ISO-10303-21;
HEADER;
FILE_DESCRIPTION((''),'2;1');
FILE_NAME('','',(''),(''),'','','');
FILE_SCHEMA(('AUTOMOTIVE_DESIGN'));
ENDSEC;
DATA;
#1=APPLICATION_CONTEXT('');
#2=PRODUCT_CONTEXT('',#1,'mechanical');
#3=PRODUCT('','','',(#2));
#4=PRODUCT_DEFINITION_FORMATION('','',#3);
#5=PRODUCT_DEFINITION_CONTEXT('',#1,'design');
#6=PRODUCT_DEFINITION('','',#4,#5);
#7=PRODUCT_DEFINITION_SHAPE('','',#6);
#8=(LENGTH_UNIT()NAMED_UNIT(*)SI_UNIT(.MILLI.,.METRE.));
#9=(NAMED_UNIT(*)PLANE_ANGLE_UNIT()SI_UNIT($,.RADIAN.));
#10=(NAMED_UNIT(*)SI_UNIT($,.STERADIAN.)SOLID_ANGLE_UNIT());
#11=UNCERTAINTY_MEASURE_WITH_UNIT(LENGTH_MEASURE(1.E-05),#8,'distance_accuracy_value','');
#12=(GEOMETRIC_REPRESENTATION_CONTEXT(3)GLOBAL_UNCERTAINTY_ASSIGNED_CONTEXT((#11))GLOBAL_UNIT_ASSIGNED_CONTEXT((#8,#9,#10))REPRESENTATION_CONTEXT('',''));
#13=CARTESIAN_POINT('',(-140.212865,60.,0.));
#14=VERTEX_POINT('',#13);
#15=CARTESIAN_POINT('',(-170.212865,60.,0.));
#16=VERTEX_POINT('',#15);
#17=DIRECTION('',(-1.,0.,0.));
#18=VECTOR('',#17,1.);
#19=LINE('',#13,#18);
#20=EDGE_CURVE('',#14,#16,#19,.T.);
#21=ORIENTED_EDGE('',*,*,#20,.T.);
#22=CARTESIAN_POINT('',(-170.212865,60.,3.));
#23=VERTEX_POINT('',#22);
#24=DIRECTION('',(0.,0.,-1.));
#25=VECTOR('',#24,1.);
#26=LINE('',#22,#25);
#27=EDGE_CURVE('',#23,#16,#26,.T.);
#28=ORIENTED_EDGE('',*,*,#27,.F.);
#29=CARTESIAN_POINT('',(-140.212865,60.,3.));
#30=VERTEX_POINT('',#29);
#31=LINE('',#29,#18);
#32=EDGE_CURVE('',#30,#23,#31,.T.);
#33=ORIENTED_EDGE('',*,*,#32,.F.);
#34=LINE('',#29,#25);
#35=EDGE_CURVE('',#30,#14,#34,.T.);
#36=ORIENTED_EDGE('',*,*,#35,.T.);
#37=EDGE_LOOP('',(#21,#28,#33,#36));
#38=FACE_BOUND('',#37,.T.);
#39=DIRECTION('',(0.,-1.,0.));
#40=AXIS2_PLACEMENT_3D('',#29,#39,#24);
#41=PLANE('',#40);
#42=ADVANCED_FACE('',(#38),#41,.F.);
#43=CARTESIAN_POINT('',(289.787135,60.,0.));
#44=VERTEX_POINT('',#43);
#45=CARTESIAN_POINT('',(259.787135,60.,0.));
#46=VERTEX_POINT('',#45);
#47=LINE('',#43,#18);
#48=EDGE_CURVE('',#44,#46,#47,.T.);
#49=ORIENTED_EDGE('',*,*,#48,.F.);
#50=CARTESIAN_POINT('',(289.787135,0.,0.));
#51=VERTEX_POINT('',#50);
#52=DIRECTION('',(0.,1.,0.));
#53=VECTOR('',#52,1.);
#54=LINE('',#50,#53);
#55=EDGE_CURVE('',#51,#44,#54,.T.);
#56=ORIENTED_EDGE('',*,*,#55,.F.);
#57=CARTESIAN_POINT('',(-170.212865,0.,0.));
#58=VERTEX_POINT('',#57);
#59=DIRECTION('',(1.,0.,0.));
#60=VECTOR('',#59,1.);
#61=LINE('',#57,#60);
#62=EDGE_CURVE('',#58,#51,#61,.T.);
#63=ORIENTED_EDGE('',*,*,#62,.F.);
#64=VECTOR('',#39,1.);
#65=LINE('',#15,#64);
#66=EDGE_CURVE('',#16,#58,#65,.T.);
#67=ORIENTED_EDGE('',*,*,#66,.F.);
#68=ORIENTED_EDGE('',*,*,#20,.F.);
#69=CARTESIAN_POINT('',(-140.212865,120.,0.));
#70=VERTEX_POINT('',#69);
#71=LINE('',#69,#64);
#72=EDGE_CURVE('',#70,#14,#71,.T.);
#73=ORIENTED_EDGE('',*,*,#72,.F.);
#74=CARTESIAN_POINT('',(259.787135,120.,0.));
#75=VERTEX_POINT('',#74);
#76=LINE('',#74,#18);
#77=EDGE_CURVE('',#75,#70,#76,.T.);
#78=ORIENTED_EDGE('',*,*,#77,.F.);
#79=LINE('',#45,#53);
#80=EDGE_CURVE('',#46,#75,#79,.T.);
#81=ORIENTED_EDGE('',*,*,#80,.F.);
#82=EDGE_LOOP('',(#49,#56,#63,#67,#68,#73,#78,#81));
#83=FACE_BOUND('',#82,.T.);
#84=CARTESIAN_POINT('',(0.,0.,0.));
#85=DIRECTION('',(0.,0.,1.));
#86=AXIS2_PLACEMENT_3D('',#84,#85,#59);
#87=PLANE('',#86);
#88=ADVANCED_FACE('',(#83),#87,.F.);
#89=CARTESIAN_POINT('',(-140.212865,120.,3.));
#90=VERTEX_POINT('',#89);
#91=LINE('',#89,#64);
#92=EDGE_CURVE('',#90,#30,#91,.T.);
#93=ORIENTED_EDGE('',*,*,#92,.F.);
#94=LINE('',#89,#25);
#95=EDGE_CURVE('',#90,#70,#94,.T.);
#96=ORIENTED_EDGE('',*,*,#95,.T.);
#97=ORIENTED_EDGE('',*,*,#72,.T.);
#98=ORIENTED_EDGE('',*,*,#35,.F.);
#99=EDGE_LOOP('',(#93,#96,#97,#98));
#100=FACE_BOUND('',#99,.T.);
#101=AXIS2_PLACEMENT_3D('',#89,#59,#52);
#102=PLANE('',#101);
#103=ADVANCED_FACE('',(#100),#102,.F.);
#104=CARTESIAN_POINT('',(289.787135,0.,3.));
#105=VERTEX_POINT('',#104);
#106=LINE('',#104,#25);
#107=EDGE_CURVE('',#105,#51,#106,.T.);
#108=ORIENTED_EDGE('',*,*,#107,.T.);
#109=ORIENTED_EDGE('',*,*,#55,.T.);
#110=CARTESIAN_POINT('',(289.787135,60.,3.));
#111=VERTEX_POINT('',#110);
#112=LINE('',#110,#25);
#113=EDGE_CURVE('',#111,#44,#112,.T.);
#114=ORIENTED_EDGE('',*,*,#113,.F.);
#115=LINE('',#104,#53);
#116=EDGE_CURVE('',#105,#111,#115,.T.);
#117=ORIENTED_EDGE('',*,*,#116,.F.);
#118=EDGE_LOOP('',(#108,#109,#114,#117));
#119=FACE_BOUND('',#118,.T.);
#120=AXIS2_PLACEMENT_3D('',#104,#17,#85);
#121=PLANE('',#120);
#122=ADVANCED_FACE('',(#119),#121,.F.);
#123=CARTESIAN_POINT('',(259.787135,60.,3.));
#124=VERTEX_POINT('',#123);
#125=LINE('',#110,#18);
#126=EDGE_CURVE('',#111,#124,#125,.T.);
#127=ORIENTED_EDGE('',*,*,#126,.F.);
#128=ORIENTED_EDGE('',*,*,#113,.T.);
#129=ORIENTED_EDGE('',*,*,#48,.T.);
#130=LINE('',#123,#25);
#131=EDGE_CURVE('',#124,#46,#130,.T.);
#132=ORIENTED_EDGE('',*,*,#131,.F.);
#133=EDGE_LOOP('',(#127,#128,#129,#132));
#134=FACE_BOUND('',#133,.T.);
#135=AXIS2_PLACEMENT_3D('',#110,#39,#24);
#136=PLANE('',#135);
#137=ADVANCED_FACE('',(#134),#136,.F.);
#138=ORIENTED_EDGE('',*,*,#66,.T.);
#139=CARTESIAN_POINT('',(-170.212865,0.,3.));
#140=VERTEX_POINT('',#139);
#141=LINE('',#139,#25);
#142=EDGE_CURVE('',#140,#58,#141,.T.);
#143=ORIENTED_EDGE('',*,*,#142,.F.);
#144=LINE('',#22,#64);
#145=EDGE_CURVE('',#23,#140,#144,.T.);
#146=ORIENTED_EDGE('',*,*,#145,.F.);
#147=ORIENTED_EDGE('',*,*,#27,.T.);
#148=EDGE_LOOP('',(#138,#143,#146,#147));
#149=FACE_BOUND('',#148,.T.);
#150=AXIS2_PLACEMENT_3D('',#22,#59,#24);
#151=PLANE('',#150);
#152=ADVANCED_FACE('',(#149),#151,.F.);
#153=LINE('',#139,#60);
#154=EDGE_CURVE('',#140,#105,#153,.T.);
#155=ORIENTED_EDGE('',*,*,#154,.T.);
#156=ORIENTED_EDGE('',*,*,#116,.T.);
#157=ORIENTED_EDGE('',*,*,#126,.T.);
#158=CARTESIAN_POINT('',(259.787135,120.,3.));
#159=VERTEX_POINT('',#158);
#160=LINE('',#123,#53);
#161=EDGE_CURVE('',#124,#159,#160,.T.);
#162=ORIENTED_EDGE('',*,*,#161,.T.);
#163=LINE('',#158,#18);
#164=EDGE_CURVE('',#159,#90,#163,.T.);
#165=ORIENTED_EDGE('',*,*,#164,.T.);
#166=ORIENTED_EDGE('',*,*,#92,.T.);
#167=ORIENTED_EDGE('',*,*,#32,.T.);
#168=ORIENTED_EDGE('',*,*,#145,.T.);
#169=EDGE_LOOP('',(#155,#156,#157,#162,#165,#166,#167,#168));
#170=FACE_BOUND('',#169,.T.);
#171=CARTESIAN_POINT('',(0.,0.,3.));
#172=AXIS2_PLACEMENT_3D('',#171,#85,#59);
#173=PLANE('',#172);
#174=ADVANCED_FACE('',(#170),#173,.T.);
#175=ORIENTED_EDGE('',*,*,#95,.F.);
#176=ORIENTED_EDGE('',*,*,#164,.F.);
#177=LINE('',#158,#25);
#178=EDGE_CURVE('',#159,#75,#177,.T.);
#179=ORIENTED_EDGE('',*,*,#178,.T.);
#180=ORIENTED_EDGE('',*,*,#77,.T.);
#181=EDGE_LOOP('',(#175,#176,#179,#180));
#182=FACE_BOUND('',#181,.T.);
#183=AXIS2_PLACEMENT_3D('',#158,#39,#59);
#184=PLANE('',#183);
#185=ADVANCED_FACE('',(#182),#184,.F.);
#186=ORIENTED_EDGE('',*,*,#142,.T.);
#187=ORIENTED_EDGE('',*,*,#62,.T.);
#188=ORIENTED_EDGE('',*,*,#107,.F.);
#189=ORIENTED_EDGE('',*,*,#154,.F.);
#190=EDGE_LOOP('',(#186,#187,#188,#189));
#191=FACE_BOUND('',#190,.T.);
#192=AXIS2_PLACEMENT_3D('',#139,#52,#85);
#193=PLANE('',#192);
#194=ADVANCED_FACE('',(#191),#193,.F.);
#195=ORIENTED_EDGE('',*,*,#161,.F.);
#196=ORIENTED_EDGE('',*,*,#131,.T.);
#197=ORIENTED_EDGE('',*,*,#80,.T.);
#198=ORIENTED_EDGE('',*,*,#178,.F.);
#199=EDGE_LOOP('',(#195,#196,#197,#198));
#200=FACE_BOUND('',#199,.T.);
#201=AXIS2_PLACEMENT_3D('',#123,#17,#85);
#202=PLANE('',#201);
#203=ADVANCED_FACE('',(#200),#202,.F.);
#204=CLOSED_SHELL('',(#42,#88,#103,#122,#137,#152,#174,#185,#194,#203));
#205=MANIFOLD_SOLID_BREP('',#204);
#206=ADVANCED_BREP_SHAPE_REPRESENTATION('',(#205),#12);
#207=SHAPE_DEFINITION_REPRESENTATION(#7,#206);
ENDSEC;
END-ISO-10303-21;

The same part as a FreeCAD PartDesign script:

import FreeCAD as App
import Part
import Sketcher


def add_polygon(sketch, points):
    """Adds a closed chain of lines whose ends are joined by coincident constraints."""
    first, n = sketch.GeometryCount, len(points)
    for a, b in zip(points, points[1:] + points[:1]):
        sketch.addGeometry(Part.LineSegment(App.Vector(*a, 0), App.Vector(*b, 0)), False)
    for i in range(n):
        sketch.addConstraint(Sketcher.Constraint("Coincident", first + i, 2, first + (i + 1) % n, 1))

doc = App.newDocument("Part")
body = doc.addObject("PartDesign::Body", "Body")

sketch1 = body.newObject("Sketcher::SketchObject", "Sketch")
sketch1.AttachmentSupport = (doc.getObject("XY_Plane"), [""])
sketch1.MapMode = "FlatFace"
add_polygon(sketch1, [(-170, 0), (290, 0), (290, 60), (260, 60), (260, 120), (-140, 120), (-140, 60), (-170, 60)])
sketch1.addConstraint(Sketcher.Constraint("Horizontal", 0))
sketch1.addConstraint(Sketcher.Constraint("Vertical", 1))
sketch1.addConstraint(Sketcher.Constraint("Horizontal", 2))
sketch1.addConstraint(Sketcher.Constraint("Vertical", 3))
sketch1.addConstraint(Sketcher.Constraint("Horizontal", 4))
sketch1.addConstraint(Sketcher.Constraint("Vertical", 5))
sketch1.addConstraint(Sketcher.Constraint("Horizontal", 6))
sketch1.addConstraint(Sketcher.Constraint("Vertical", 7))
sketch1.addConstraint(Sketcher.Constraint("PointOnObject", 0, 2, -1))
sketch1.addConstraint(Sketcher.Constraint("Horizontal", 2, 2, 5, 2))
sketch1.addConstraint(Sketcher.Constraint("Equal", 2, 6))
sketch1.addConstraint(Sketcher.Constraint("Equal", 1, 3))
sketch1.addConstraint(Sketcher.Constraint("DistanceX", 0, 1, 0, 2, 460.0))
sketch1.addConstraint(Sketcher.Constraint("DistanceX", 2, 2, 2, 1, 30.0))
sketch1.addConstraint(Sketcher.Constraint("DistanceY", 1, 1, 1, 2, 60.0))
sketch1.addConstraint(Sketcher.Constraint("DistanceX", -1, 1, 0, 2, 289.787135))
pad1 = body.newObject("PartDesign::Pad", "Pad")
pad1.Profile = sketch1
pad1.Length = 3

doc.recompute()
